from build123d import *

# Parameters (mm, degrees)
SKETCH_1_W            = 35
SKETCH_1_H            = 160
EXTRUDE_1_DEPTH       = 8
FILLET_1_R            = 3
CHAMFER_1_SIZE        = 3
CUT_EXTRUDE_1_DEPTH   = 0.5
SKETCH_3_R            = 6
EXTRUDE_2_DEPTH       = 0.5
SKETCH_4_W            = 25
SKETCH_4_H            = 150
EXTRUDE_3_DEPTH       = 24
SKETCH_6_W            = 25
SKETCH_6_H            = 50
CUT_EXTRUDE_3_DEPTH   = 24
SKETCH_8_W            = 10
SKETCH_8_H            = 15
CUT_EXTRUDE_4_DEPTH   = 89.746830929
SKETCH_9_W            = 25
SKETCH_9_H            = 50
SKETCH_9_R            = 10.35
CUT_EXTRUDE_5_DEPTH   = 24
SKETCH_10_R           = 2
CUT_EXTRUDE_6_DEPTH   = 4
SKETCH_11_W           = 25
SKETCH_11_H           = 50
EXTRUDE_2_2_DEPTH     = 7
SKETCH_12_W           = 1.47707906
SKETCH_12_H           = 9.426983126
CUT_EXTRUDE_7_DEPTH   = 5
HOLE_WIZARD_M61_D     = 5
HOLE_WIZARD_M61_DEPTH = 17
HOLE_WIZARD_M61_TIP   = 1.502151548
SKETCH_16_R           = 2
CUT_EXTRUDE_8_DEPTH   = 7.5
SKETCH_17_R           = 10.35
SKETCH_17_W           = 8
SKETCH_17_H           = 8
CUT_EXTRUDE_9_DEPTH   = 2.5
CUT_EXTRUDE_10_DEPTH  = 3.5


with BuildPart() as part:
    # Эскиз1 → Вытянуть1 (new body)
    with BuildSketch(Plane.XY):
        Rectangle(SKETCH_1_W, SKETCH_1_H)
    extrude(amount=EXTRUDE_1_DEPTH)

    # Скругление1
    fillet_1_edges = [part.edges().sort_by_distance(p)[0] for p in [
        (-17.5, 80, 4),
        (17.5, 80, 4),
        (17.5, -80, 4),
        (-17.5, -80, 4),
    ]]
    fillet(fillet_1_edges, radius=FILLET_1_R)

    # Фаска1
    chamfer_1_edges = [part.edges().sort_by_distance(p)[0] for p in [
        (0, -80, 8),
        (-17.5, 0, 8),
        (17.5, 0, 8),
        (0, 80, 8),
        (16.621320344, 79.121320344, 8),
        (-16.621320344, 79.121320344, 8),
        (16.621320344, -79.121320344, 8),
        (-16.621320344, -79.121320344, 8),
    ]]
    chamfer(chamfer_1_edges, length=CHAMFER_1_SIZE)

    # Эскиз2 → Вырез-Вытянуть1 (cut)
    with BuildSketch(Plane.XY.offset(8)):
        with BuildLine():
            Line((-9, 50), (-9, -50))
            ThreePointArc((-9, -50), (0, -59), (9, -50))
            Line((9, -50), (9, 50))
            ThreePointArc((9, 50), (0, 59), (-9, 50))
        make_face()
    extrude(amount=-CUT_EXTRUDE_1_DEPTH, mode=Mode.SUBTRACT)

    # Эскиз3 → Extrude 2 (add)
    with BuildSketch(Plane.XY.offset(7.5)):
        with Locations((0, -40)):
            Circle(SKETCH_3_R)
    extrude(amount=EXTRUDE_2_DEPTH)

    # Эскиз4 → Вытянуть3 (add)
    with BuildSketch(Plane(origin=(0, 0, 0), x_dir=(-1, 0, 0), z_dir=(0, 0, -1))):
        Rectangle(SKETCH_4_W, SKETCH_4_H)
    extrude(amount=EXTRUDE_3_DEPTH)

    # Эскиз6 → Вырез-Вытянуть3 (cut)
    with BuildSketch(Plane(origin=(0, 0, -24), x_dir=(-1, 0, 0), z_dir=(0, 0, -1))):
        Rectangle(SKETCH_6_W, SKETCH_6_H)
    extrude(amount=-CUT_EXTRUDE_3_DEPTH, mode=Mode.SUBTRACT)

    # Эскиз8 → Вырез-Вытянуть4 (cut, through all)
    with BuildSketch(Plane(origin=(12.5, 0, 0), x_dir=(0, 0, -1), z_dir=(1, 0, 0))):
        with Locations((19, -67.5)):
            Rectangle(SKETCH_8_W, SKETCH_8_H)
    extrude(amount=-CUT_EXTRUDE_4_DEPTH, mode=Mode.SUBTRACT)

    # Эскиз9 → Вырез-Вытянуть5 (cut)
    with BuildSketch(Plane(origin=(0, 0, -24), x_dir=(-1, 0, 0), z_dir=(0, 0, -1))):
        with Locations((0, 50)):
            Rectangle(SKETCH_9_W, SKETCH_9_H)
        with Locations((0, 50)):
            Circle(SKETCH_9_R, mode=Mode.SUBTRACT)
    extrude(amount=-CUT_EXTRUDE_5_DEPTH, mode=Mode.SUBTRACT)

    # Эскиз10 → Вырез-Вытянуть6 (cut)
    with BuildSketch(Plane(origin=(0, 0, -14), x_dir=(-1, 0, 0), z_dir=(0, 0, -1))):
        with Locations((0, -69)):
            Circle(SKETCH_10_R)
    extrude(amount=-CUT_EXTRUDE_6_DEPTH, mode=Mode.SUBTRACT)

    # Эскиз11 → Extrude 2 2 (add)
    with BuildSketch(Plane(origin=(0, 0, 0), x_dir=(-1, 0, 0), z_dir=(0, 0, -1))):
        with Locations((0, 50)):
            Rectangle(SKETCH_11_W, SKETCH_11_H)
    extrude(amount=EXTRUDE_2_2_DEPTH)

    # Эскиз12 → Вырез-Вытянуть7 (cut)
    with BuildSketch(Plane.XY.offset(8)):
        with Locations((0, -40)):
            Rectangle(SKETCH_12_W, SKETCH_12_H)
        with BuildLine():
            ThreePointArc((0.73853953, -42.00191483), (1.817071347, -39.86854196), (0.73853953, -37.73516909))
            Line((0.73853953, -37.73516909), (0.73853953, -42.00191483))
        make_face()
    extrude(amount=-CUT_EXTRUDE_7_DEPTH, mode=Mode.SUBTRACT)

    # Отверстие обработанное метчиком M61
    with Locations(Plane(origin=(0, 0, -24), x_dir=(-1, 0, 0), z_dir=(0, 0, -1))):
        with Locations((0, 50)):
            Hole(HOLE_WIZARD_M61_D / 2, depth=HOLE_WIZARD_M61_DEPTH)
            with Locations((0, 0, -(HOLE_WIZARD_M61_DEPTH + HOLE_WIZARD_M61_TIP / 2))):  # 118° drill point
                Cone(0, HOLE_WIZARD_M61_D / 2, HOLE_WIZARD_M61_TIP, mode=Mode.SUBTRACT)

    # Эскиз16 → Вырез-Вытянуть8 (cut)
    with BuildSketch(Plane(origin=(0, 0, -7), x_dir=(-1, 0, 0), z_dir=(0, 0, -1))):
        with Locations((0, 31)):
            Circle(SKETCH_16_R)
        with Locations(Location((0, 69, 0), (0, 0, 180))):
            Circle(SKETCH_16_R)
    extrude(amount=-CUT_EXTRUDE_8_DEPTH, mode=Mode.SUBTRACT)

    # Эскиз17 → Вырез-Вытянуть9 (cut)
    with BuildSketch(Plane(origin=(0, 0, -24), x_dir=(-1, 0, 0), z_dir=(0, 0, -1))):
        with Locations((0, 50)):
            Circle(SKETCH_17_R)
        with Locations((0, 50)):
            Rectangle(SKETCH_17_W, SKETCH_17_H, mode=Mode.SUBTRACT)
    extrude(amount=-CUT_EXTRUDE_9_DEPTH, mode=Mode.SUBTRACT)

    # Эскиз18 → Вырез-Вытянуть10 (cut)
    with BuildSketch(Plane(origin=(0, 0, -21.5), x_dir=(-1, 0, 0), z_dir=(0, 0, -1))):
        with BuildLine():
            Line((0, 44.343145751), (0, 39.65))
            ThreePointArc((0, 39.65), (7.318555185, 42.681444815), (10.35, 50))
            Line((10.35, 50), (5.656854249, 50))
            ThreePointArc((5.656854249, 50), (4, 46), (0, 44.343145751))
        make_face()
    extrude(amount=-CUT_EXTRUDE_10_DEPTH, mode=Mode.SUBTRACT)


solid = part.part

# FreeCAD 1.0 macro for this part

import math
import FreeCAD as App
import Part
import Sketcher
from FreeCAD import Vector
Q = App.Units.Quantity


def edges_at(feature, points):
    """Names of the edges that pass closest to the given points."""
    edges = feature.Shape.Edges
    near = lambda p: min(range(len(edges)), key=lambda i: edges[i].distToShape(Part.Vertex(*p))[0])
    return sorted({f"Edge{near(p) + 1}" for p in points})

doc = App.newDocument("Part")
body = doc.addObject("PartDesign::Body", "Body")

sketch1 = body.newObject("Sketcher::SketchObject", "Sketch")
sketch1.AttachmentSupport = (doc.getObject("XY_Plane"), [""])
sketch1.MapMode = "FlatFace"
sketch1.addGeometry([
    Part.LineSegment(Vector(-18, 80, 0), Vector(-18, -80, 0)),
    Part.LineSegment(Vector(-18, -80, 0), Vector(18, -80, 0)),
    Part.LineSegment(Vector(18, -80, 0), Vector(18, 80, 0)),
    Part.LineSegment(Vector(18, 80, 0), Vector(-18, 80, 0)),
], False)
sketch1.addConstraint([
    Sketcher.Constraint("Coincident", 0, 2, 1, 1),
    Sketcher.Constraint("Coincident", 1, 2, 2, 1),
    Sketcher.Constraint("Coincident", 2, 2, 3, 1),
    Sketcher.Constraint("Coincident", 3, 2, 0, 1),
    Sketcher.Constraint("Vertical", 0),
    Sketcher.Constraint("Horizontal", 1),
    Sketcher.Constraint("Vertical", 2),
    Sketcher.Constraint("Horizontal", 3),
    Sketcher.Constraint("Symmetric", 0, 2, 2, 2, -1, 1),
    Sketcher.Constraint("DistanceX", 1, 1, 1, 2, Q("35 mm")),
    Sketcher.Constraint("DistanceY", 0, 2, 0, 1, Q("160 mm")),
])
pad1 = body.newObject("PartDesign::Pad", "Pad")
pad1.Profile = sketch1
pad1.Length = 8
doc.recompute()

fillet = body.newObject("PartDesign::Fillet", "Fillet")
fillet.Base = (pad1, edges_at(pad1, [
    (-17.5, 80, 4),
    (17.5, 80, 4),
    (17.5, -80, 4),
    (-17.5, -80, 4),
]))
fillet.Radius = 3
doc.recompute()

chamfer = body.newObject("PartDesign::Chamfer", "Chamfer")
chamfer.Base = (fillet, edges_at(fillet, [
    (0, -80, 8),
    (-17.5, 0, 8),
    (17.5, 0, 8),
    (0, 80, 8),
    (16.621, 79.121, 8),
    (-16.621, 79.121, 8),
    (16.621, -79.121, 8),
    (-16.621, -79.121, 8),
]))
chamfer.Size = 3

sketch2 = body.newObject("Sketcher::SketchObject", "Sketch001")
sketch2.AttachmentSupport = (doc.getObject("XY_Plane"), [""])
sketch2.MapMode = "FlatFace"
sketch2.AttachmentOffset = App.Placement(Vector(0, 0, 8), App.Rotation())
sketch2.addGeometry([
    Part.LineSegment(Vector(-9, 50, 0), Vector(-9, -50, 0)),
    Part.ArcOfCircle(Part.Circle(Vector(0, -50, 0), Vector(0, 0, 1), 9), math.radians(180), math.radians(360)),
    Part.LineSegment(Vector(9, -50, 0), Vector(9, 50, 0)),
    Part.ArcOfCircle(Part.Circle(Vector(0, 50, 0), Vector(0, 0, 1), 9), math.radians(0), math.radians(180)),
], False)
sketch2.addConstraint([
    Sketcher.Constraint("Tangent", 0, 2, 1, 1),
    Sketcher.Constraint("Tangent", 1, 2, 2, 1),
    Sketcher.Constraint("Tangent", 2, 2, 3, 1),
    Sketcher.Constraint("Tangent", 3, 2, 0, 1),
    Sketcher.Constraint("Vertical", 0),
    Sketcher.Constraint("Vertical", 2),
    Sketcher.Constraint("Symmetric", 1, 3, 3, 3, -1, 1),
    Sketcher.Constraint("Radius", 1, Q("9 mm")),
    Sketcher.Constraint("DistanceY", 0, 2, 0, 1, Q("100 mm")),
])
pocket1 = body.newObject("PartDesign::Pocket", "Pocket")
pocket1.Profile = sketch2
pocket1.Length = 0.5

sketch3 = body.newObject("Sketcher::SketchObject", "Sketch002")
sketch3.AttachmentSupport = (doc.getObject("XY_Plane"), [""])
sketch3.MapMode = "FlatFace"
sketch3.AttachmentOffset = App.Placement(Vector(0, 0, 7.5), App.Rotation())
sketch3.addGeometry(Part.Circle(Vector(0, -40, 0), Vector(0, 0, 1), 6), False)
sketch3.addConstraint([
    Sketcher.Constraint("PointOnObject", 0, 3, -2),
    Sketcher.Constraint("Diameter", 0, Q("12 mm")),
    Sketcher.Constraint("DistanceY", 0, 3, -1, 1, Q("40 mm")),
])
pad2 = body.newObject("PartDesign::Pad", "Pad001")
pad2.Profile = sketch3
pad2.Length = 0.5

sketch4 = body.newObject("Sketcher::SketchObject", "Sketch003")
sketch4.AttachmentSupport = (doc.getObject("XY_Plane"), [""])
sketch4.MapMode = "FlatFace"
sketch4.addGeometry([
    Part.LineSegment(Vector(12, 75, 0), Vector(12, -75, 0)),
    Part.LineSegment(Vector(12, -75, 0), Vector(-12, -75, 0)),
    Part.LineSegment(Vector(-12, -75, 0), Vector(-12, 75, 0)),
    Part.LineSegment(Vector(-12, 75, 0), Vector(12, 75, 0)),
], False)
sketch4.addConstraint([
    Sketcher.Constraint("Coincident", 0, 2, 1, 1),
    Sketcher.Constraint("Coincident", 1, 2, 2, 1),
    Sketcher.Constraint("Coincident", 2, 2, 3, 1),
    Sketcher.Constraint("Coincident", 3, 2, 0, 1),
    Sketcher.Constraint("Vertical", 0),
    Sketcher.Constraint("Horizontal", 1),
    Sketcher.Constraint("Vertical", 2),
    Sketcher.Constraint("Horizontal", 3),
    Sketcher.Constraint("Symmetric", 0, 2, 2, 2, -1, 1),
    Sketcher.Constraint("DistanceX", 1, 2, 1, 1, Q("25 mm")),
    Sketcher.Constraint("DistanceY", 0, 2, 0, 1, Q("150 mm")),
])
pad3 = body.newObject("PartDesign::Pad", "Pad002")
pad3.Profile = sketch4
pad3.Length = 24
pad3.Reversed = True

sketch5 = body.newObject("Sketcher::SketchObject", "Sketch004")
sketch5.AttachmentSupport = (doc.getObject("XY_Plane"), [""])
sketch5.MapMode = "FlatFace"
sketch5.AttachmentOffset = App.Placement(Vector(0, 0, -24), App.Rotation())
sketch5.addGeometry([
    Part.LineSegment(Vector(12, 25, 0), Vector(12, -25, 0)),
    Part.LineSegment(Vector(12, -25, 0), Vector(-12, -25, 0)),
    Part.LineSegment(Vector(-12, -25, 0), Vector(-12, 25, 0)),
    Part.LineSegment(Vector(-12, 25, 0), Vector(12, 25, 0)),
], False)
sketch5.addConstraint([
    Sketcher.Constraint("Coincident", 0, 2, 1, 1),
    Sketcher.Constraint("Coincident", 1, 2, 2, 1),
    Sketcher.Constraint("Coincident", 2, 2, 3, 1),
    Sketcher.Constraint("Coincident", 3, 2, 0, 1),
    Sketcher.Constraint("Vertical", 0),
    Sketcher.Constraint("Horizontal", 1),
    Sketcher.Constraint("Vertical", 2),
    Sketcher.Constraint("Horizontal", 3),
    Sketcher.Constraint("Symmetric", 0, 2, 2, 2, -1, 1),
    Sketcher.Constraint("DistanceX", 1, 2, 1, 1, Q("25 mm")),
    Sketcher.Constraint("DistanceY", 0, 2, 0, 1, Q("50 mm")),
])
pocket2 = body.newObject("PartDesign::Pocket", "Pocket001")
pocket2.Profile = sketch5
pocket2.Length = 24
pocket2.Reversed = True

sketch6 = body.newObject("Sketcher::SketchObject", "Sketch005")
sketch6.AttachmentSupport = (doc.getObject("YZ_Plane"), [""])
sketch6.MapMode = "FlatFace"
sketch6.AttachmentOffset = App.Placement(Vector(0, 0, 12.5), App.Rotation())
sketch6.addGeometry([
    Part.LineSegment(Vector(-60, -14, 0), Vector(-75, -14, 0)),
    Part.LineSegment(Vector(-75, -14, 0), Vector(-75, -24, 0)),
    Part.LineSegment(Vector(-75, -24, 0), Vector(-60, -24, 0)),
    Part.LineSegment(Vector(-60, -24, 0), Vector(-60, -14, 0)),
], False)
sketch6.addConstraint([
    Sketcher.Constraint("Coincident", 0, 2, 1, 1),
    Sketcher.Constraint("Coincident", 1, 2, 2, 1),
    Sketcher.Constraint("Coincident", 2, 2, 3, 1),
    Sketcher.Constraint("Coincident", 3, 2, 0, 1),
    Sketcher.Constraint("Horizontal", 0),
    Sketcher.Constraint("Vertical", 1),
    Sketcher.Constraint("Horizontal", 2),
    Sketcher.Constraint("Vertical", 3),
    Sketcher.Constraint("DistanceX", 0, 2, 0, 1, Q("15 mm")),
    Sketcher.Constraint("DistanceY", 1, 2, 1, 1, Q("10 mm")),
    Sketcher.Constraint("DistanceX", 0, 2, -1, 1, Q("75 mm")),
    Sketcher.Constraint("DistanceY", 0, 2, -1, 1, Q("14 mm")),
])
pocket3 = body.newObject("PartDesign::Pocket", "Pocket002")
pocket3.Profile = sketch6
pocket3.Type = "ThroughAll"

sketch7 = body.newObject("Sketcher::SketchObject", "Sketch006")
sketch7.AttachmentSupport = (doc.getObject("XY_Plane"), [""])
sketch7.MapMode = "FlatFace"
sketch7.AttachmentOffset = App.Placement(Vector(0, 0, -24), App.Rotation())
sketch7.addGeometry([
    Part.LineSegment(Vector(12, 75, 0), Vector(12, 25, 0)),
    Part.LineSegment(Vector(12, 25, 0), Vector(-12, 25, 0)),
    Part.LineSegment(Vector(-12, 25, 0), Vector(-12, 75, 0)),
    Part.LineSegment(Vector(-12, 75, 0), Vector(12, 75, 0)),
    Part.Circle(Vector(0, 50, 0), Vector(0, 0, 1), 10),
], False)
sketch7.addConstraint([
    Sketcher.Constraint("Coincident", 0, 2, 1, 1),
    Sketcher.Constraint("Coincident", 1, 2, 2, 1),
    Sketcher.Constraint("Coincident", 2, 2, 3, 1),
    Sketcher.Constraint("Coincident", 3, 2, 0, 1),
    Sketcher.Constraint("Vertical", 0),
    Sketcher.Constraint("Horizontal", 1),
    Sketcher.Constraint("Vertical", 2),
    Sketcher.Constraint("Horizontal", 3),
    Sketcher.Constraint("PointOnObject", 4, 3, -2),
    Sketcher.Constraint("Diameter", 4, Q("20.7 mm")),
    Sketcher.Constraint("DistanceX", 1, 2, 1, 1, Q("25 mm")),
    Sketcher.Constraint("DistanceY", 0, 2, 0, 1, Q("50 mm")),
    Sketcher.Constraint("DistanceY", -1, 1, 4, 3, Q("50 mm")),
    Sketcher.Constraint("DistanceY", -1, 1, 0, 2, Q("25 mm")),
    Sketcher.Constraint("DistanceX", -1, 1, 0, 2, Q("12.5 mm")),
])
pocket4 = body.newObject("PartDesign::Pocket", "Pocket003")
pocket4.Profile = sketch7
pocket4.Length = 24
pocket4.Reversed = True

sketch8 = body.newObject("Sketcher::SketchObject", "Sketch007")
sketch8.AttachmentSupport = (doc.getObject("XY_Plane"), [""])
sketch8.MapMode = "FlatFace"
sketch8.AttachmentOffset = App.Placement(Vector(0, 0, -14), App.Rotation())
sketch8.addGeometry(Part.Circle(Vector(0, -69, 0), Vector(0, 0, 1), 2), False)
sketch8.addConstraint([
    Sketcher.Constraint("PointOnObject", 0, 3, -2),
    Sketcher.Constraint("Diameter", 0, Q("4 mm")),
    Sketcher.Constraint("DistanceY", 0, 3, -1, 1, Q("69 mm")),
])
pocket5 = body.newObject("PartDesign::Pocket", "Pocket004")
pocket5.Profile = sketch8
pocket5.Length = 4
pocket5.Reversed = True

sketch9 = body.newObject("Sketcher::SketchObject", "Sketch008")
sketch9.AttachmentSupport = (doc.getObject("XY_Plane"), [""])
sketch9.MapMode = "FlatFace"
sketch9.addGeometry([
    Part.LineSegment(Vector(12, 75, 0), Vector(12, 25, 0)),
    Part.LineSegment(Vector(12, 25, 0), Vector(-12, 25, 0)),
    Part.LineSegment(Vector(-12, 25, 0), Vector(-12, 75, 0)),
    Part.LineSegment(Vector(-12, 75, 0), Vector(12, 75, 0)),
], False)
sketch9.addConstraint([
    Sketcher.Constraint("Coincident", 0, 2, 1, 1),
    Sketcher.Constraint("Coincident", 1, 2, 2, 1),
    Sketcher.Constraint("Coincident", 2, 2, 3, 1),
    Sketcher.Constraint("Coincident", 3, 2, 0, 1),
    Sketcher.Constraint("Vertical", 0),
    Sketcher.Constraint("Horizontal", 1),
    Sketcher.Constraint("Vertical", 2),
    Sketcher.Constraint("Horizontal", 3),
    Sketcher.Constraint("DistanceX", 1, 2, 1, 1, Q("25 mm")),
    Sketcher.Constraint("DistanceY", 0, 2, 0, 1, Q("50 mm")),
    Sketcher.Constraint("DistanceY", -1, 1, 0, 2, Q("25 mm")),
    Sketcher.Constraint("DistanceX", -1, 1, 0, 2, Q("12.5 mm")),
])
pad4 = body.newObject("PartDesign::Pad", "Pad003")
pad4.Profile = sketch9
pad4.Length = 7
pad4.Reversed = True

sketch10 = body.newObject("Sketcher::SketchObject", "Sketch009")
sketch10.AttachmentSupport = (doc.getObject("XY_Plane"), [""])
sketch10.MapMode = "FlatFace"
sketch10.AttachmentOffset = App.Placement(Vector(0, 0, 8), App.Rotation())
sketch10.addGeometry([
    Part.LineSegment(Vector(-0.7, -35.3, 0), Vector(-0.7, -44.7, 0)),
    Part.LineSegment(Vector(-0.7, -44.7, 0), Vector(0.7, -44.7, 0)),
    Part.LineSegment(Vector(0.7, -44.7, 0), Vector(0.7, -42, 0)),
    Part.ArcOfCircle(Part.Circle(Vector(-0.8, -39.9, 0), Vector(0, 0, 1), 2.6), math.radians(-54), math.radians(54)),
    Part.LineSegment(Vector(0.7, -37.7, 0), Vector(0.7, -35.3, 0)),
    Part.LineSegment(Vector(0.7, -35.3, 0), Vector(-0.7, -35.3, 0)),
], False)
sketch10.addConstraint([
    Sketcher.Constraint("Coincident", 0, 2, 1, 1),
    Sketcher.Constraint("Coincident", 1, 2, 2, 1),
    Sketcher.Constraint("Coincident", 2, 2, 3, 1),
    Sketcher.Constraint("Coincident", 3, 2, 4, 1),
    Sketcher.Constraint("Coincident", 4, 2, 5, 1),
    Sketcher.Constraint("Coincident", 5, 2, 0, 1),
    Sketcher.Constraint("Vertical", 0),
    Sketcher.Constraint("Horizontal", 1),
    Sketcher.Constraint("Vertical", 2),
    Sketcher.Constraint("Vertical", 4),
    Sketcher.Constraint("Horizontal", 5),
    Sketcher.Constraint("Vertical", 2, 2, 3, 2),
    Sketcher.Constraint("Radius", 3, Q("2.649208 mm")),
    Sketcher.Constraint("DistanceX", 1, 1, 1, 2, Q("1.477079 mm")),
    Sketcher.Constraint("DistanceY", 4, 1, 4, 2, Q("2.448661 mm")),
    Sketcher.Constraint("DistanceY", 0, 2, 0, 1, Q("9.426983 mm")),
    Sketcher.Constraint("DistanceY", 2, 1, 2, 2, Q("2.711577 mm")),
    Sketcher.Constraint("DistanceY", 3, 3, -1, 1, Q("39.868542 mm")),
    Sketcher.Constraint("DistanceX", 0, 2, -1, 1, Q("0.73854 mm")),
])
pocket6 = body.newObject("PartDesign::Pocket", "Pocket005")
pocket6.Profile = sketch10
pocket6.Length = 5

sketch11 = body.newObject("Sketcher::SketchObject", "Sketch010")
sketch11.AttachmentSupport = (doc.getObject("XY_Plane"), [""])
sketch11.MapMode = "FlatFace"
sketch11.AttachmentOffset = App.Placement(Vector(0, 0, -24), App.Rotation())
sketch11.addGeometry(Part.Circle(Vector(0, 50, 0), Vector(0, 0, 1), 2.5), False)
sketch11.addConstraint([
    Sketcher.Constraint("PointOnObject", 0, 3, -2),
    Sketcher.Constraint("Diameter", 0, Q("5 mm")),
    Sketcher.Constraint("DistanceY", -1, 1, 0, 3, Q("50 mm")),
])
doc.recompute()
hole = body.newObject("PartDesign::Hole", "Hole")
hole.Profile = sketch11
hole.ThreadType = "None"
hole.Diameter = 5
hole.DepthType = "Dimension"
hole.Depth = 17
hole.DrillPoint = "Angled"
hole.DrillPointAngle = 118
hole.Reversed = True

sketch12 = body.newObject("Sketcher::SketchObject", "Sketch011")
sketch12.AttachmentSupport = (doc.getObject("XY_Plane"), [""])
sketch12.MapMode = "FlatFace"
sketch12.AttachmentOffset = App.Placement(Vector(0, 0, -7), App.Rotation())
sketch12.addGeometry([
    Part.Circle(Vector(0, 31, 0), Vector(0, 0, 1), 2),
    Part.Circle(Vector(0, 69, 0), Vector(0, 0, 1), 2),
], False)
sketch12.addConstraint([
    Sketcher.Constraint("Equal", 0, 1),
    Sketcher.Constraint("PointOnObject", 0, 3, -2),
    Sketcher.Constraint("PointOnObject", 1, 3, -2),
    Sketcher.Constraint("Diameter", 0, Q("4 mm")),
    Sketcher.Constraint("DistanceY", -1, 1, 0, 3, Q("31 mm")),
    Sketcher.Constraint("DistanceY", -1, 1, 1, 3, Q("69 mm")),
])
pocket7 = body.newObject("PartDesign::Pocket", "Pocket006")
pocket7.Profile = sketch12
pocket7.Length = 7.5
pocket7.Reversed = True

sketch13 = body.newObject("Sketcher::SketchObject", "Sketch012")
sketch13.AttachmentSupport = (doc.getObject("XY_Plane"), [""])
sketch13.MapMode = "FlatFace"
sketch13.AttachmentOffset = App.Placement(Vector(0, 0, -24), App.Rotation())
sketch13.addGeometry([
    Part.Circle(Vector(0, 50, 0), Vector(0, 0, 1), 10),
    Part.LineSegment(Vector(-4, 46, 0), Vector(4, 46, 0)),
    Part.LineSegment(Vector(4, 46, 0), Vector(4, 54, 0)),
    Part.LineSegment(Vector(4, 54, 0), Vector(-4, 54, 0)),
    Part.LineSegment(Vector(-4, 54, 0), Vector(-4, 46, 0)),
], False)
sketch13.addConstraint([
    Sketcher.Constraint("Coincident", 1, 2, 2, 1),
    Sketcher.Constraint("Coincident", 2, 2, 3, 1),
    Sketcher.Constraint("Coincident", 3, 2, 4, 1),
    Sketcher.Constraint("Coincident", 4, 2, 1, 1),
    Sketcher.Constraint("Horizontal", 1),
    Sketcher.Constraint("Vertical", 2),
    Sketcher.Constraint("Horizontal", 3),
    Sketcher.Constraint("Vertical", 4),
    Sketcher.Constraint("PointOnObject", 0, 3, -2),
    Sketcher.Constraint("Equal", 3, 2),
    Sketcher.Constraint("Diameter", 0, Q("20.7 mm")),
    Sketcher.Constraint("DistanceX", 1, 1, 1, 2, Q("8 mm")),
    Sketcher.Constraint("DistanceY", -1, 1, 0, 3, Q("50 mm")),
    Sketcher.Constraint("DistanceX", -1, 1, 1, 2, Q("4 mm")),
    Sketcher.Constraint("DistanceY", -1, 1, 1, 2, Q("46 mm")),
])
pocket8 = body.newObject("PartDesign::Pocket", "Pocket007")
pocket8.Profile = sketch13
pocket8.Length = 2.5
pocket8.Reversed = True

sketch14 = body.newObject("Sketcher::SketchObject", "Sketch013")
sketch14.AttachmentSupport = (doc.getObject("XY_Plane"), [""])
sketch14.MapMode = "FlatFace"
sketch14.AttachmentOffset = App.Placement(Vector(0, 0, -21.5), App.Rotation())
sketch14.addGeometry([
    Part.LineSegment(Vector(0, 44.3, 0), Vector(0, 39.6, 0)),
    Part.ArcOfCircle(Part.Circle(Vector(0, 50, 0), Vector(0, 0, 1), 10.4), math.radians(-180), math.radians(-90)),
    Part.LineSegment(Vector(-10.3, 50, 0), Vector(-5.7, 50, 0)),
    Part.ArcOfCircle(Part.Circle(Vector(0, 50, 0), Vector(0, 0, 1), 5.7), math.radians(180), math.radians(270)),
], False)
sketch14.addConstraint([
    Sketcher.Constraint("Coincident", 0, 2, 1, 2),
    Sketcher.Constraint("Coincident", 1, 1, 2, 1),
    Sketcher.Constraint("Coincident", 2, 2, 3, 1),
    Sketcher.Constraint("Coincident", 3, 2, 0, 1),
    Sketcher.Constraint("Vertical", 0),
    Sketcher.Constraint("Horizontal", 2),
    Sketcher.Constraint("Coincident", 3, 3, 1, 3),
    Sketcher.Constraint("PointOnObject", 1, 3, -2),
    Sketcher.Constraint("PointOnObject", 0, 2, -2),
    Sketcher.Constraint("Horizontal", 3, 3, 1, 1),
    Sketcher.Constraint("Radius", 1, Q("10.35 mm")),
    Sketcher.Constraint("DistanceY", -1, 1, 1, 3, Q("50 mm")),
    Sketcher.Constraint("Radius", 3, Q("5.656854 mm")),
])
pocket9 = body.newObject("PartDesign::Pocket", "Pocket008")
pocket9.Profile = sketch14
pocket9.Length = 3.5
pocket9.Reversed = True

doc.recompute()
